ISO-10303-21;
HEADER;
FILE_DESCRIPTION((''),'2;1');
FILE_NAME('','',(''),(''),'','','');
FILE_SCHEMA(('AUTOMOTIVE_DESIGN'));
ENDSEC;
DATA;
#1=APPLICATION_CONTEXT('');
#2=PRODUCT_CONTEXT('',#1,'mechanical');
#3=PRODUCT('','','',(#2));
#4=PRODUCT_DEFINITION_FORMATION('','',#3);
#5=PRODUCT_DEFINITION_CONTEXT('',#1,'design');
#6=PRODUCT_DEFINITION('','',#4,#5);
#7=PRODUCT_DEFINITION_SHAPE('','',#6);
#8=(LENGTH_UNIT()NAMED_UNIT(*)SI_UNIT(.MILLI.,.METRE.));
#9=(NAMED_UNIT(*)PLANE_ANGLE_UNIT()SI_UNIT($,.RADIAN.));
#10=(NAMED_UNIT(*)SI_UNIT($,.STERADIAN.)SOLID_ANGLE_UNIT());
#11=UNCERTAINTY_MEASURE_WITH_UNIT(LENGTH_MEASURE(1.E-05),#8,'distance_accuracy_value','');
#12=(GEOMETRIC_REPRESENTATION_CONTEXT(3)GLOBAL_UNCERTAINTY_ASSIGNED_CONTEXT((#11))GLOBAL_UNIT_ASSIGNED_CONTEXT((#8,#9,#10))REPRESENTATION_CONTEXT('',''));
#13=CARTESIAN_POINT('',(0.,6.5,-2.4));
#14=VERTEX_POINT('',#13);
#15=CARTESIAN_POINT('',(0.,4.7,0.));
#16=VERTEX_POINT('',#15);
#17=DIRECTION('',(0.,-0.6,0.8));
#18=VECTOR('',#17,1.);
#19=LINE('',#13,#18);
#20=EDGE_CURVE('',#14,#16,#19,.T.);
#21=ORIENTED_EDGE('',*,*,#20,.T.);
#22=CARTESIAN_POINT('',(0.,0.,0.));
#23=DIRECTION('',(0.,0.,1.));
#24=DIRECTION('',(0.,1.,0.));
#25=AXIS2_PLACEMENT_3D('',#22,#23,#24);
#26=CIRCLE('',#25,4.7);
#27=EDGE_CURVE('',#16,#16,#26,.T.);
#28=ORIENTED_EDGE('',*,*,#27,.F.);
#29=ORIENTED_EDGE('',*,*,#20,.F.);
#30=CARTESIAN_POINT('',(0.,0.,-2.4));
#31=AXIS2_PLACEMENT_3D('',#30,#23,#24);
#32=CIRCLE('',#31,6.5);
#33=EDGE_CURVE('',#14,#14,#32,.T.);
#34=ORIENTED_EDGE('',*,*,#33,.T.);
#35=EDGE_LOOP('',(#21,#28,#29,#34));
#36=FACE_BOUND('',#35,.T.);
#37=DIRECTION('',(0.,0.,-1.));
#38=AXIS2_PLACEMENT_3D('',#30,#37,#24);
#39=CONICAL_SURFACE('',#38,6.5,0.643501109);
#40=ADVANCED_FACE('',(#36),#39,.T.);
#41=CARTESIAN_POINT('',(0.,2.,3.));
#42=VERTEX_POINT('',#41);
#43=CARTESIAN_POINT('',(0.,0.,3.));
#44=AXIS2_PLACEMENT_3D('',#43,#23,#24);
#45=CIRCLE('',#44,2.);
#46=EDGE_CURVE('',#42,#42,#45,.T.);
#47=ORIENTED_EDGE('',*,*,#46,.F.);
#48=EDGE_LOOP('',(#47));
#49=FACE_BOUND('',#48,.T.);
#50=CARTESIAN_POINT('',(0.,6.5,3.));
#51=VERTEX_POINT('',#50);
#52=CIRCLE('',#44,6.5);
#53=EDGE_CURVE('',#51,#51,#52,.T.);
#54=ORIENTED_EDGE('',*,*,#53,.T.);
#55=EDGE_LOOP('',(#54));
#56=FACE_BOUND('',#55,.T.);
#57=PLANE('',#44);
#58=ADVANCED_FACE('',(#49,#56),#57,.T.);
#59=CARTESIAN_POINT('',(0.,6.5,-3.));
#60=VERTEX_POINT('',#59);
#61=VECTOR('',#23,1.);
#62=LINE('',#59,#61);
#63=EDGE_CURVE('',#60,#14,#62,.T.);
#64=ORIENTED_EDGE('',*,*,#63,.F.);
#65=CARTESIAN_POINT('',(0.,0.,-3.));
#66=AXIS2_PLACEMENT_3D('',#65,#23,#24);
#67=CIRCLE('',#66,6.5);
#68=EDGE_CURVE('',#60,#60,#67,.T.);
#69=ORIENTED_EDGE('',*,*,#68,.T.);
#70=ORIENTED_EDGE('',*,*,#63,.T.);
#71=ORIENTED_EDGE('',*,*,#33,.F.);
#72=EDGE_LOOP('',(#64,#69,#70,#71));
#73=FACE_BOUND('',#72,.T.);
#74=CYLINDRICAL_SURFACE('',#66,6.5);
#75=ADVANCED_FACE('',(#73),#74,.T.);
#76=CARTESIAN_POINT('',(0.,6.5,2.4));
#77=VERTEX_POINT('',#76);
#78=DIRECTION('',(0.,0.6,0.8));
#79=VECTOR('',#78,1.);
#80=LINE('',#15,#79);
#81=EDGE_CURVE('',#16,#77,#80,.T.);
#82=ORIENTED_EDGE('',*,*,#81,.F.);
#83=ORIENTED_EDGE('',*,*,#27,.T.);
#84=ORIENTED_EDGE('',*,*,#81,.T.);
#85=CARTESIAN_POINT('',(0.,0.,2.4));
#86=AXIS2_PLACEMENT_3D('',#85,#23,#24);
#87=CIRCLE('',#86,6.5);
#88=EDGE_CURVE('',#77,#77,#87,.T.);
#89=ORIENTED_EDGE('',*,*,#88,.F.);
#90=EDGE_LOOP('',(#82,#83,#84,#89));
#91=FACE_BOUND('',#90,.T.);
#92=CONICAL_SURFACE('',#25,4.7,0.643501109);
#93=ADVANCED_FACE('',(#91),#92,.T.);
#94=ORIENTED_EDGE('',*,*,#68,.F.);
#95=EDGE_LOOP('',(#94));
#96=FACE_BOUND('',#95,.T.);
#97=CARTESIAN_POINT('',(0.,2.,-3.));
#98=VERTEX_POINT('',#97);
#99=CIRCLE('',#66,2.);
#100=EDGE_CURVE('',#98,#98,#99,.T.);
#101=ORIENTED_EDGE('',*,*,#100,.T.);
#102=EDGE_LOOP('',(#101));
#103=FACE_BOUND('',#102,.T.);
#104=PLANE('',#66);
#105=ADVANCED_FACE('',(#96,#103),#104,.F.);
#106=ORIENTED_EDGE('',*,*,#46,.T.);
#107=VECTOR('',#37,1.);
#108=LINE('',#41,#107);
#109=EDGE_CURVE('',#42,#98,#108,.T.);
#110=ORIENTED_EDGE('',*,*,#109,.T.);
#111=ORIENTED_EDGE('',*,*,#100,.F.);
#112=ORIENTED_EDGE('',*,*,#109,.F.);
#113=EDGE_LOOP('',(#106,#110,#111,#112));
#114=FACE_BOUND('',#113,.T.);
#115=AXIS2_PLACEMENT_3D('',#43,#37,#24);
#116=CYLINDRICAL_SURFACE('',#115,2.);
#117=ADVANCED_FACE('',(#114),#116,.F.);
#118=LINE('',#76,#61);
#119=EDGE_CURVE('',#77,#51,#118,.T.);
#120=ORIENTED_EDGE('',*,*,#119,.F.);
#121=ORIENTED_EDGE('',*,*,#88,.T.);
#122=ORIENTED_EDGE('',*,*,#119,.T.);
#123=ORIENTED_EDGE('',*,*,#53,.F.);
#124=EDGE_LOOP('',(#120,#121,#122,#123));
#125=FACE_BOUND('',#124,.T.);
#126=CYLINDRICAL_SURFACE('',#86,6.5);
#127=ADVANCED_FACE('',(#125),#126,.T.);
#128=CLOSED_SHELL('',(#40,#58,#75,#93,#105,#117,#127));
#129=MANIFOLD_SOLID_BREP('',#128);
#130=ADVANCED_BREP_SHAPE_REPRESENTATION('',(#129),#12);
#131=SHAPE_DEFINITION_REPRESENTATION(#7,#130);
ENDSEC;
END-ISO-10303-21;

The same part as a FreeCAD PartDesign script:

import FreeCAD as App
import Part
import Sketcher

V = App.Vector
Q = App.Units.Quantity


def add_polygon(sketch, points):
    """Adds a closed chain of lines whose ends are joined by coincident constraints."""
    first, n = sketch.GeometryCount, len(points)
    for a, b in zip(points, points[1:] + points[:1]):
        sketch.addGeometry(Part.LineSegment(App.Vector(*a, 0), App.Vector(*b, 0)), False)
    for i in range(n):
        sketch.addConstraint(Sketcher.Constraint("Coincident", first + i, 2, first + (i + 1) % n, 1))

doc = App.newDocument("Part")
body = doc.addObject("PartDesign::Body", "Body")

# Sketch on YZ plane
sketch1 = doc.addObject("Sketcher::SketchObject", "Sketch")
body.addObject(sketch1)
sketch1.AttachmentSupport = (doc.YZ_Plane, [""])
sketch1.MapMode = "FlatFace"
add_polygon(sketch1, [(2, 3), (2, -3), (6.5, -3), (6.5, -2.4), (4.7, 0), (6.5, 2.4), (6.5, 3)])  # lines 0-6
sketch1.addConstraint(Sketcher.Constraint("Vertical", 0))
sketch1.addConstraint(Sketcher.Constraint("Horizontal", 1))
sketch1.addConstraint(Sketcher.Constraint("Vertical", 2))
sketch1.addConstraint(Sketcher.Constraint("Vertical", 5))
sketch1.addConstraint(Sketcher.Constraint("Horizontal", 6))
sketch1.addConstraint(Sketcher.Constraint("Symmetric", 2, 2, 4, 2, -1))
sketch1.addConstraint(Sketcher.Constraint("PointOnObject", 3, 2, -1))
sketch1.addConstraint(Sketcher.Constraint("Equal", 2, 5))
sketch1.addConstraint(Sketcher.Constraint("DistanceY", 0, 2, 0, 1, Q("6 mm")))
sketch1.addConstraint(Sketcher.Constraint("Distance", 3, Q("3 mm")))
sketch1.addConstraint(Sketcher.Constraint("DistanceX", 1, 1, 1, 2, Q("4.5 mm")))
sketch1.addConstraint(Sketcher.Constraint("DistanceY", 2, 1, 2, 2, Q("0.6 mm")))
sketch1.addConstraint(Sketcher.Constraint("DistanceX", -1, 1, 0, 2, Q("2 mm")))
revolution = doc.addObject("PartDesign::Revolution", "Revolution")
body.addObject(revolution)
revolution.Profile = sketch1
revolution.ReferenceAxis = (sketch1, ["V_Axis"])
revolution.Angle = 360

doc.recompute()
